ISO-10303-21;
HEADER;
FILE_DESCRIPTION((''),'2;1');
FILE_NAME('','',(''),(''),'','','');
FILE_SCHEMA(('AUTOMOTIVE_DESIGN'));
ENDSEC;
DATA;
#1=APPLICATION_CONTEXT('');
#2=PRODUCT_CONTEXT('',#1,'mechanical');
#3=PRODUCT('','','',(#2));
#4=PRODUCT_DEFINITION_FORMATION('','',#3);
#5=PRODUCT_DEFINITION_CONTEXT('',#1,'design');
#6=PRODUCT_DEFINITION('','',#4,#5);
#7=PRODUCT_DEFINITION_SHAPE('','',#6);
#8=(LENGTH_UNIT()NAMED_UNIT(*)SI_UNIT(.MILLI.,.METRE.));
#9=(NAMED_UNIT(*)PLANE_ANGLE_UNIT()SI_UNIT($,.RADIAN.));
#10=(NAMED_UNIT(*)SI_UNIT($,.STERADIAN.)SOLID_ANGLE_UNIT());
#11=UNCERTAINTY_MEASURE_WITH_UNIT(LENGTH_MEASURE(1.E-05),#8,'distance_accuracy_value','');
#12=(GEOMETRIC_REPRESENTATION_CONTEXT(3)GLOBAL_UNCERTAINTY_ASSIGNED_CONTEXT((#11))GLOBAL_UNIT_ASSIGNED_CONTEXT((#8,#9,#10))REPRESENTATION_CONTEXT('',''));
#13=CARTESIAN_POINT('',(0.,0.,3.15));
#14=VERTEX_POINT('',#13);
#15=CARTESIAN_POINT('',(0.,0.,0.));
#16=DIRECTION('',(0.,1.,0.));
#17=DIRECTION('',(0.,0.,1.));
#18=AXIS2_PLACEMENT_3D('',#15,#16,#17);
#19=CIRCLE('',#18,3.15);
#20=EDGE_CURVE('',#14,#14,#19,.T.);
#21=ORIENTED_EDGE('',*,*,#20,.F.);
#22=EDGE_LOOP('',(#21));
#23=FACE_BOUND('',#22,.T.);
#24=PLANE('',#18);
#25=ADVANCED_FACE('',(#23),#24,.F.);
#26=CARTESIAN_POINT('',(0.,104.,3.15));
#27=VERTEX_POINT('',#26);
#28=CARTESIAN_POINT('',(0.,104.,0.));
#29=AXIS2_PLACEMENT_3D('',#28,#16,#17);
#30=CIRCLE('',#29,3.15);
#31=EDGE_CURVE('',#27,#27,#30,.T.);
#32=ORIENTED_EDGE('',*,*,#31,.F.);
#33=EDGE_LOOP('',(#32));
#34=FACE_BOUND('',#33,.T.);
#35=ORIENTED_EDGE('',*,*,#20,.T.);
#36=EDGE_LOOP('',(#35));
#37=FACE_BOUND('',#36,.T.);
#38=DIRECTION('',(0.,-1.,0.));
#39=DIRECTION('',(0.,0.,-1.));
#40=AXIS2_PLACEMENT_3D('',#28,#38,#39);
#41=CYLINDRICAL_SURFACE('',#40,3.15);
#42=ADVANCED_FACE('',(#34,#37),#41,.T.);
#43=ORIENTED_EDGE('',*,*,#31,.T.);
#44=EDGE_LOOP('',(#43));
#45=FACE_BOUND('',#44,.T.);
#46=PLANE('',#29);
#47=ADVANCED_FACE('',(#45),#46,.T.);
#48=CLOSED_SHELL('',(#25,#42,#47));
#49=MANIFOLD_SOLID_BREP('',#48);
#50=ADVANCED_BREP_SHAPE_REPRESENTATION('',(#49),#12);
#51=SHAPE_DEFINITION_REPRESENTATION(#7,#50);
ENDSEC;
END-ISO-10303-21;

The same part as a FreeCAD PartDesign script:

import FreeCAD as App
import Part
import Sketcher

V = App.Vector
Q = App.Units.Quantity

doc = App.newDocument("Part")
body = doc.addObject("PartDesign::Body", "Body")

sketch1 = body.newObject("Sketcher::SketchObject", "Sketch")
sketch1.AttachmentSupport = (doc.getObject("XZ_Plane"), [""])
sketch1.MapMode = "FlatFace"
sketch1.addGeometry(Part.Circle(V(0, 0, 0), V(0, 0, 1), 3.1), False)
sketch1.addConstraint(Sketcher.Constraint("Coincident", 0, 3, -1, 1))
sketch1.addConstraint(Sketcher.Constraint("Diameter", 0, Q("6.3 mm")))
pad1 = body.newObject("PartDesign::Pad", "Pad")
pad1.Profile = sketch1
pad1.Length = 104
pad1.Reversed = True

doc.recompute()
